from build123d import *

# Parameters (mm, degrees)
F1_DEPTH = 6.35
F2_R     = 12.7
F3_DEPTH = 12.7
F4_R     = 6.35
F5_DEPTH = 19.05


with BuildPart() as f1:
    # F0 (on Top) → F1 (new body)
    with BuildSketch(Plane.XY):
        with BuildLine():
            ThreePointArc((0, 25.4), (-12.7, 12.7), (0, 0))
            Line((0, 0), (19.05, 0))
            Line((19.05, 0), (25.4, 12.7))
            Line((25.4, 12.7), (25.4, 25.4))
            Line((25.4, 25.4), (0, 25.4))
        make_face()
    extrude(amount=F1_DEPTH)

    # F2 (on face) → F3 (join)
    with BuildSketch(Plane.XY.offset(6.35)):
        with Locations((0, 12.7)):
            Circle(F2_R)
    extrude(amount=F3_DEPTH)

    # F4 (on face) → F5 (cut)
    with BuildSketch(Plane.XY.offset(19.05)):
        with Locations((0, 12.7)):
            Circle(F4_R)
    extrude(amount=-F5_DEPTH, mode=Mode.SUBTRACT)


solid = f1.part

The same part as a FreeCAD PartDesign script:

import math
import FreeCAD as App
import Part
import Sketcher
Q = App.Units.Quantity

doc = App.newDocument("Part")
body = doc.addObject("PartDesign::Body", "Body")

# Sketch on XY plane
sketch1 = doc.addObject("Sketcher::SketchObject", "Sketch")
body.addObject(sketch1)
sketch1.AttachmentSupport = (doc.XY_Plane, [""])
sketch1.MapMode = "FlatFace"
sketch1.addGeometry([
    Part.ArcOfCircle(Part.Circle(App.Vector(0, 12.7, 0), App.Vector(0, 0, 1), 12.7), math.radians(90), math.radians(270)),  # 0
    Part.LineSegment(App.Vector(0, 0, 0), App.Vector(19.05, 0, 0)),  # 1
    Part.LineSegment(App.Vector(19.05, 0, 0), App.Vector(25.4, 12.7, 0)),  # 2
    Part.LineSegment(App.Vector(25.4, 12.7, 0), App.Vector(25.4, 25.4, 0)),  # 3
    Part.LineSegment(App.Vector(25.4, 25.4, 0), App.Vector(0, 25.4, 0)),  # 4
], False)
sketch1.addConstraint([
    Sketcher.Constraint("Tangent", 0, 2, 1, 1),
    Sketcher.Constraint("Coincident", 1, 2, 2, 1),
    Sketcher.Constraint("Coincident", 2, 2, 3, 1),
    Sketcher.Constraint("Coincident", 3, 2, 4, 1),
    Sketcher.Constraint("Tangent", 4, 2, 0, 1),
    Sketcher.Constraint("Horizontal", 1),
    Sketcher.Constraint("Vertical", 3),
    Sketcher.Constraint("Horizontal", 4),
    Sketcher.Constraint("Coincident", 0, 2, -1, 1),
    Sketcher.Constraint("Horizontal", 0, 3, 2, 2),
    Sketcher.Constraint("Radius", 0, Q("0.5 in")),
    Sketcher.Constraint("DistanceX", 4, 2, 4, 1, Q("1 in")),
    Sketcher.Constraint("DistanceX", 1, 1, 1, 2, Q("0.75 in")),
])
pad1 = doc.addObject("PartDesign::Pad", "Pad")
body.addObject(pad1)
pad1.Profile = sketch1
pad1.Length = Q("0.25 in")

# Sketch on XY plane
sketch2 = doc.addObject("Sketcher::SketchObject", "Sketch001")
body.addObject(sketch2)
sketch2.AttachmentSupport = (doc.XY_Plane, [""])
sketch2.MapMode = "FlatFace"
sketch2.AttachmentOffset = App.Placement(App.Vector(0, 0, 0.25 * 25.4), App.Rotation())
sketch2.addGeometry(Part.Circle(App.Vector(0, 12.7, 0), App.Vector(0, 0, 1), 12.7), False)
sketch2.addConstraint([
    Sketcher.Constraint("PointOnObject", 0, 3, -2),
    Sketcher.Constraint("Diameter", 0, Q("1 in")),
    Sketcher.Constraint("DistanceY", -1, 1, 0, 3, Q("0.5 in")),
])
pad2 = doc.addObject("PartDesign::Pad", "Pad001")
body.addObject(pad2)
pad2.Profile = sketch2
pad2.Length = Q("0.5 in")

# Sketch on XY plane
sketch3 = doc.addObject("Sketcher::SketchObject", "Sketch002")
body.addObject(sketch3)
sketch3.AttachmentSupport = (doc.XY_Plane, [""])
sketch3.MapMode = "FlatFace"
sketch3.AttachmentOffset = App.Placement(App.Vector(0, 0, 0.75 * 25.4), App.Rotation())
sketch3.addGeometry(Part.Circle(App.Vector(0, 12.7, 0), App.Vector(0, 0, 1), 6.35), False)
sketch3.addConstraint([
    Sketcher.Constraint("PointOnObject", 0, 3, -2),
    Sketcher.Constraint("Diameter", 0, Q("0.5 in")),
    Sketcher.Constraint("DistanceY", -1, 1, 0, 3, Q("0.5 in")),
])
pocket1 = doc.addObject("PartDesign::Pocket", "Pocket")
body.addObject(pocket1)
pocket1.Profile = sketch3
pocket1.Length = Q("0.75 in")

doc.recompute()
